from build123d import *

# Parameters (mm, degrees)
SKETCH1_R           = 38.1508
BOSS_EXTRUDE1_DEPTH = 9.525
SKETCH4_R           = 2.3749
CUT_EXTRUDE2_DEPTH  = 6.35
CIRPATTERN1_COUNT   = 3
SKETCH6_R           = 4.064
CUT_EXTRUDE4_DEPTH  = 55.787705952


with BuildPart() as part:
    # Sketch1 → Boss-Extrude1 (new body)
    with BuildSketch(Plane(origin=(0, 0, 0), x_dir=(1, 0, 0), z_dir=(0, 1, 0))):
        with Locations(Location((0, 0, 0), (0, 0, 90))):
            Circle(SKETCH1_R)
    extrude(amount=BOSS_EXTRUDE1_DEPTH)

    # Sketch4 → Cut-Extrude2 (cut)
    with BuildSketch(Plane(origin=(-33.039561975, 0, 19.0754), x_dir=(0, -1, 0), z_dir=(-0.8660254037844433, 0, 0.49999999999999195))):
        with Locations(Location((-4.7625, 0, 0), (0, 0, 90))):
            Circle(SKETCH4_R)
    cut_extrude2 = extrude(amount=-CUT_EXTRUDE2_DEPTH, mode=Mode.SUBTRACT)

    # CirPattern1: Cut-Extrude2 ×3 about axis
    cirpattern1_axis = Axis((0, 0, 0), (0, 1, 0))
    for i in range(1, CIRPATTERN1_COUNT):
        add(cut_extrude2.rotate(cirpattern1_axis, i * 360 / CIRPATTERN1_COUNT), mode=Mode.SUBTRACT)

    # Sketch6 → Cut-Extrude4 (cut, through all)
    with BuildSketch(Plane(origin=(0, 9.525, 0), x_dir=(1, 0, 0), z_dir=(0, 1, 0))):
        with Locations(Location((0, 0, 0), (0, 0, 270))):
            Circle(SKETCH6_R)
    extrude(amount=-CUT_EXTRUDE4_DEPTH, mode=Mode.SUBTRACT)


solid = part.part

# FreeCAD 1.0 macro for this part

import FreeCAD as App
import Part
import Sketcher

V = App.Vector
Q = App.Units.Quantity

doc = App.newDocument("Part")
body = doc.addObject("PartDesign::Body", "Body")

# Sketch on XZ plane
sketch1 = body.newObject("Sketcher::SketchObject", "Sketch")
sketch1.AttachmentSupport = (doc.getObject("XZ_Plane"), [""])
sketch1.MapMode = "FlatFace"
sketch1.addGeometry(Part.Circle(V(0, 0, 0), V(0, 0, 1), 38), False)
sketch1.addConstraint([
    Sketcher.Constraint("Coincident", 0, 3, -1, 1),
    Sketcher.Constraint("Diameter", 0, Q("3.004 in")),
])
pad1 = body.newObject("PartDesign::Pad", "Pad")
pad1.Profile = sketch1
pad1.Length = Q("0.375 in")
pad1.Reversed = True

# Sketch on an angled plane
sketch2 = body.newObject("Sketcher::SketchObject", "Sketch001")
sketch2.Placement = App.Placement(V(-33.039562, 0, 19.0754), App.Rotation(V(0, -1, 0), V(0.5, 0, 0.866025404), V(-0.866025404, 0, 0.5), "ZXY"))
sketch2.addGeometry(Part.Circle(V(-4.8, 0, 0), V(0, 0, 1), 2.4), False)
sketch2.addConstraint([
    Sketcher.Constraint("PointOnObject", 0, 3, -1),
    Sketcher.Constraint("Diameter", 0, Q("0.187 in")),
    Sketcher.Constraint("DistanceX", 0, 3, -1, 1, Q("0.1875 in")),
])
pocket1 = body.newObject("PartDesign::Pocket", "Pocket")
pocket1.Profile = sketch2
pocket1.Length = Q("0.25 in")
doc.recompute()

polarpattern = body.newObject("PartDesign::PolarPattern", "PolarPattern")
polarpattern.Originals = [pocket1]
polarpattern.Axis = (doc.getObject("Y_Axis"), [""])
polarpattern.Angle = 360
polarpattern.Occurrences = 3
body.Tip = polarpattern

# Sketch on XZ plane
sketch3 = body.newObject("Sketcher::SketchObject", "Sketch002")
sketch3.AttachmentSupport = (doc.getObject("XZ_Plane"), [""])
sketch3.MapMode = "FlatFace"
sketch3.AttachmentOffset = App.Placement(V(0, 0, -0.375 * 25.4), App.Rotation())
sketch3.addGeometry(Part.Circle(V(0, 0, 0), V(0, 0, 1), 4.1), False)
sketch3.addConstraint([
    Sketcher.Constraint("Coincident", 0, 3, -1, 1),
    Sketcher.Constraint("Diameter", 0, Q("0.32 in")),
])
pocket2 = body.newObject("PartDesign::Pocket", "Pocket001")
pocket2.Profile = sketch3
pocket2.Type = "ThroughAll"
pocket2.Reversed = True

doc.recompute()
